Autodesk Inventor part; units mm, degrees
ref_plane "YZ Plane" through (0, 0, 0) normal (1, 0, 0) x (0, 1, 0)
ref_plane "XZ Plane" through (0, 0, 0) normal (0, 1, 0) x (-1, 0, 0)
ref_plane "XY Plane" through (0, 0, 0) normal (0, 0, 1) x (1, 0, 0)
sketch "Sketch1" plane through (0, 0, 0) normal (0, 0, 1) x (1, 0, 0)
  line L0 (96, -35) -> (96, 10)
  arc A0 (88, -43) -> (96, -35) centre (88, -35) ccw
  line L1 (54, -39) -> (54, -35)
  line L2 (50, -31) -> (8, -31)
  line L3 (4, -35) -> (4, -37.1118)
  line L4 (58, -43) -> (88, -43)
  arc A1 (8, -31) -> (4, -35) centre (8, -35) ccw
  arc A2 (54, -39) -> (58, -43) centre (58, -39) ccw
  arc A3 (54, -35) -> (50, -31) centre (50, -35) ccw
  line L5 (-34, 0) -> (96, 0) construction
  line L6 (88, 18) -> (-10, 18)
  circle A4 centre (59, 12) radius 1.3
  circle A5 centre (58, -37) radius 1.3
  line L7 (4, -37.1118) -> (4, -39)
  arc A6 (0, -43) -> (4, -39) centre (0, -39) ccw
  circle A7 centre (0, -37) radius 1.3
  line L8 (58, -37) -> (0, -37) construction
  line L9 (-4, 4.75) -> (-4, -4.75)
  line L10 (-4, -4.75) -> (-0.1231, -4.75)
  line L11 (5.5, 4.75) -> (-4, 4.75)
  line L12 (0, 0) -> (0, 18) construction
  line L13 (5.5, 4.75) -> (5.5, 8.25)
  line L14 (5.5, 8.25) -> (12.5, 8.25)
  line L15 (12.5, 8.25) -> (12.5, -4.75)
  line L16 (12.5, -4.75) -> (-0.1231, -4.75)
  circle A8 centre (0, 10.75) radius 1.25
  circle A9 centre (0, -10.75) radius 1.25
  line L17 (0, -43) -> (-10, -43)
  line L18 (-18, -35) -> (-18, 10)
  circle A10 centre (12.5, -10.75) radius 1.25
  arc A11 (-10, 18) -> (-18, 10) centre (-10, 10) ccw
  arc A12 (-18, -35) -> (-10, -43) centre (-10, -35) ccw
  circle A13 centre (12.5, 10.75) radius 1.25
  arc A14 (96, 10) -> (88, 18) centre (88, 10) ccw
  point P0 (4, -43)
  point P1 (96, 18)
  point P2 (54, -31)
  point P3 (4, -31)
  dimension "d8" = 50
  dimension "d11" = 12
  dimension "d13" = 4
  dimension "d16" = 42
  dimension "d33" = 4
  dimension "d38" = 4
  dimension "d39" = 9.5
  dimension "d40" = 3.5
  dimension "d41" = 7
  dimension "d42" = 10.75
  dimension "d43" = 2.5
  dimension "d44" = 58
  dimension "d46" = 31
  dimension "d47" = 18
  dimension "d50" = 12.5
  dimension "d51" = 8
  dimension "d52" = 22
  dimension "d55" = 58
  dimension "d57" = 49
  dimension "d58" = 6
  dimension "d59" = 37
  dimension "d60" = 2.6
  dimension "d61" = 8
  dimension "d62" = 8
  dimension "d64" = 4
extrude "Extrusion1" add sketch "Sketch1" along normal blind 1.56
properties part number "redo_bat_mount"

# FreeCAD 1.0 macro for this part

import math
import FreeCAD as App
import Part
import Sketcher


def add_polygon(sketch, points):
    """Adds a closed chain of lines whose ends are joined by coincident constraints."""
    first, n = sketch.GeometryCount, len(points)
    for a, b in zip(points, points[1:] + points[:1]):
        sketch.addGeometry(Part.LineSegment(App.Vector(*a, 0), App.Vector(*b, 0)), False)
    for i in range(n):
        sketch.addConstraint(Sketcher.Constraint("Coincident", first + i, 2, first + (i + 1) % n, 1))

doc = App.newDocument("Part")
params = doc.addObject("Spreadsheet::Sheet", "Params")
for row, (alias, value) in enumerate([
    ("sketch1_radius", "8 mm"),
    ("sketch1_radius2", "4 mm"),
    ("sketch1_diameter", "2.6 mm"),
    ("sketch1_diameter2", "2.5 mm"),
    ("sketch1_width", "42 mm"),
    ("pad1_length", "1.56 mm"),
], start=1):
    params.set(f"A{row}", alias)
    params.set(f"B{row}", "=" + value)
    params.setAlias(f"B{row}", alias)

body = doc.addObject("PartDesign::Body", "Body")

sketch1 = body.newObject("Sketcher::SketchObject", "Sketch")
sketch1.AttachmentSupport = (doc.getObject("XY_Plane"), [""])
sketch1.MapMode = "FlatFace"
sketch1.addGeometry(Part.ArcOfCircle(Part.Circle(App.Vector(88, -35, 0), App.Vector(0, 0, 1), 8), math.radians(-90), math.radians(0)), False)
sketch1.addGeometry(Part.LineSegment(App.Vector(96, -35, 0), App.Vector(96, 10, 0)), False)
sketch1.addGeometry(Part.ArcOfCircle(Part.Circle(App.Vector(88, 10, 0), App.Vector(0, 0, 1), 8), math.radians(0), math.radians(90)), False)
sketch1.addGeometry(Part.LineSegment(App.Vector(88, 18, 0), App.Vector(-10, 18, 0)), False)
sketch1.addGeometry(Part.ArcOfCircle(Part.Circle(App.Vector(-10, 10, 0), App.Vector(0, 0, 1), 8), math.radians(90), math.radians(180)), False)
sketch1.addGeometry(Part.LineSegment(App.Vector(-18, 10, 0), App.Vector(-18, -35, 0)), False)
sketch1.addGeometry(Part.ArcOfCircle(Part.Circle(App.Vector(-10, -35, 0), App.Vector(0, 0, 1), 8), math.radians(180), math.radians(270)), False)
sketch1.addGeometry(Part.LineSegment(App.Vector(-10, -43, 0), App.Vector(0, -43, 0)), False)
sketch1.addGeometry(Part.ArcOfCircle(Part.Circle(App.Vector(0, -39, 0), App.Vector(0, 0, 1), 4), math.radians(-90), math.radians(0)), False)
sketch1.addGeometry(Part.LineSegment(App.Vector(4, -39, 0), App.Vector(4, -35, 0)), False)
sketch1.addGeometry(Part.ArcOfCircle(Part.Circle(App.Vector(8, -35, 0), App.Vector(0, 0, 1), 4), math.radians(90), math.radians(180)), False)
sketch1.addGeometry(Part.LineSegment(App.Vector(8, -31, 0), App.Vector(50, -31, 0)), False)
sketch1.addGeometry(Part.ArcOfCircle(Part.Circle(App.Vector(50, -35, 0), App.Vector(0, 0, 1), 4), math.radians(0), math.radians(90)), False)
sketch1.addGeometry(Part.LineSegment(App.Vector(54, -35, 0), App.Vector(54, -39, 0)), False)
sketch1.addGeometry(Part.ArcOfCircle(Part.Circle(App.Vector(58, -39, 0), App.Vector(0, 0, 1), 4), math.radians(180), math.radians(270)), False)
sketch1.addGeometry(Part.LineSegment(App.Vector(58, -43, 0), App.Vector(88, -43, 0)), False)
sketch1.addGeometry(Part.Circle(App.Vector(0, -37, 0), App.Vector(0, 0, 1), 1.3), False)
sketch1.addGeometry(Part.Circle(App.Vector(58, -37, 0), App.Vector(0, 0, 1), 1.3), False)
sketch1.addGeometry(Part.Circle(App.Vector(0, -10.8, 0), App.Vector(0, 0, 1), 1.2), False)
add_polygon(sketch1, [(-4, -4.8), (-4, 4.8), (5.5, 4.8), (5.5, 8.2), (12.5, 8.2), (12.5, -4.8)])
sketch1.addGeometry(Part.Circle(App.Vector(12.5, -10.8, 0), App.Vector(0, 0, 1), 1.2), False)
sketch1.addGeometry(Part.Circle(App.Vector(0, 10.8, 0), App.Vector(0, 0, 1), 1.2), False)
sketch1.addGeometry(Part.Circle(App.Vector(12.5, 10.8, 0), App.Vector(0, 0, 1), 1.2), False)
sketch1.addGeometry(Part.Circle(App.Vector(59, 12, 0), App.Vector(0, 0, 1), 1.3), False)
sketch1.addConstraint([
    Sketcher.Constraint("Tangent", 0, 2, 1, 1),
    Sketcher.Constraint("Tangent", 1, 2, 2, 1),
    Sketcher.Constraint("Tangent", 2, 2, 3, 1),
    Sketcher.Constraint("Tangent", 3, 2, 4, 1),
    Sketcher.Constraint("Tangent", 4, 2, 5, 1),
    Sketcher.Constraint("Tangent", 5, 2, 6, 1),
    Sketcher.Constraint("Tangent", 6, 2, 7, 1),
    Sketcher.Constraint("Tangent", 7, 2, 8, 1),
    Sketcher.Constraint("Tangent", 8, 2, 9, 1),
    Sketcher.Constraint("Tangent", 9, 2, 10, 2),
    Sketcher.Constraint("Tangent", 10, 1, 11, 1),
    Sketcher.Constraint("Tangent", 11, 2, 12, 2),
    Sketcher.Constraint("Tangent", 12, 1, 13, 1),
    Sketcher.Constraint("Tangent", 13, 2, 14, 1),
    Sketcher.Constraint("Tangent", 14, 2, 15, 1),
    Sketcher.Constraint("Tangent", 15, 2, 0, 1),
    Sketcher.Constraint("Vertical", 1),
    Sketcher.Constraint("Horizontal", 3),
    Sketcher.Constraint("Vertical", 5),
    Sketcher.Constraint("Horizontal", 7),
    Sketcher.Constraint("Vertical", 9),
    Sketcher.Constraint("Horizontal", 11),
    Sketcher.Constraint("Vertical", 13),
    Sketcher.Constraint("Horizontal", 15),
    Sketcher.Constraint("Vertical", 19),
    Sketcher.Constraint("Horizontal", 20),
    Sketcher.Constraint("Vertical", 21),
    Sketcher.Constraint("Horizontal", 22),
    Sketcher.Constraint("Vertical", 23),
    Sketcher.Constraint("Horizontal", 24),
    Sketcher.Constraint("Equal", 0, 2),
    Sketcher.Constraint("Equal", 2, 4),
    Sketcher.Constraint("Equal", 4, 6),
    Sketcher.Constraint("Equal", 8, 10),
    Sketcher.Constraint("Equal", 10, 12),
    Sketcher.Constraint("Equal", 12, 14),
    Sketcher.Constraint("Equal", 16, 17),
    Sketcher.Constraint("Equal", 18, 25),
    Sketcher.Constraint("Equal", 25, 26),
    Sketcher.Constraint("Equal", 26, 27),
    Sketcher.Constraint("Equal", 17, 28),
    Sketcher.Constraint("Symmetric", 18, 3, 26, 3, -1, 1),
    Sketcher.Constraint("Symmetric", 25, 3, 27, 3, -1),
    Sketcher.Constraint("PointOnObject", 8, 3, -2),
    Sketcher.Constraint("PointOnObject", 16, 3, -2),
    Sketcher.Constraint("PointOnObject", 18, 3, -2),
    Sketcher.Constraint("Horizontal", 0, 3, 6, 3),
    Sketcher.Constraint("Horizontal", 6, 3, 10, 3),
    Sketcher.Constraint("Horizontal", 16, 3, 17, 3),
    Sketcher.Constraint("Horizontal", 18, 3, 25, 3),
    Sketcher.Constraint("Vertical", 14, 3, 17, 3),
    Sketcher.Constraint("Vertical", 27, 3, 22, 2),
    Sketcher.Constraint("Equal", 20, 19),
    Sketcher.Constraint("Radius", 0, 8.0),
    Sketcher.Constraint("Radius", 8, 4.0),
    Sketcher.Constraint("Diameter", 16, 2.6),
    Sketcher.Constraint("Diameter", 18, 2.5),
    Sketcher.Constraint("DistanceX", 11, 1, 11, 2, 42.0),
    Sketcher.Constraint("DistanceX", 22, 1, 22, 2, 7.0),
    Sketcher.Constraint("DistanceX", 20, 1, 20, 2, 9.5),
    Sketcher.Constraint("DistanceY", 21, 1, 21, 2, 3.5),
    Sketcher.Constraint("DistanceY", 16, 3, -1, 1, 37.0),
    Sketcher.Constraint("DistanceY", -1, 1, 28, 3, 12.0),
    Sketcher.Constraint("DistanceY", -1, 1, 2, 2, 18.0),
    Sketcher.Constraint("DistanceX", 4, 2, -1, 1, 18.0),
    Sketcher.Constraint("DistanceY", 10, 1, -1, 1, 31.0),
    Sketcher.Constraint("DistanceX", 19, 2, -1, 1, 4.0),
    Sketcher.Constraint("DistanceX", 28, 3, 1, 2, 37.0),
    Sketcher.Constraint("DistanceY", 19, 2, 26, 3, 6.0),
    Sketcher.Constraint("DistanceY", 25, 3, 23, 2, 6.0),
    Sketcher.Constraint("DistanceX", 3, 2, 3, 1, 98.0),
])
sketch1.setExpression("Constraints[59]", "Params.sketch1_radius")
sketch1.setExpression("Constraints[60]", "Params.sketch1_radius2")
sketch1.setExpression("Constraints[61]", "Params.sketch1_diameter")
sketch1.setExpression("Constraints[62]", "Params.sketch1_diameter2")
sketch1.setExpression("Constraints[63]", "Params.sketch1_width")
pad1 = body.newObject("PartDesign::Pad", "Pad")
pad1.Profile = sketch1
pad1.setExpression("Length", "Params.pad1_length")

doc.recompute()
